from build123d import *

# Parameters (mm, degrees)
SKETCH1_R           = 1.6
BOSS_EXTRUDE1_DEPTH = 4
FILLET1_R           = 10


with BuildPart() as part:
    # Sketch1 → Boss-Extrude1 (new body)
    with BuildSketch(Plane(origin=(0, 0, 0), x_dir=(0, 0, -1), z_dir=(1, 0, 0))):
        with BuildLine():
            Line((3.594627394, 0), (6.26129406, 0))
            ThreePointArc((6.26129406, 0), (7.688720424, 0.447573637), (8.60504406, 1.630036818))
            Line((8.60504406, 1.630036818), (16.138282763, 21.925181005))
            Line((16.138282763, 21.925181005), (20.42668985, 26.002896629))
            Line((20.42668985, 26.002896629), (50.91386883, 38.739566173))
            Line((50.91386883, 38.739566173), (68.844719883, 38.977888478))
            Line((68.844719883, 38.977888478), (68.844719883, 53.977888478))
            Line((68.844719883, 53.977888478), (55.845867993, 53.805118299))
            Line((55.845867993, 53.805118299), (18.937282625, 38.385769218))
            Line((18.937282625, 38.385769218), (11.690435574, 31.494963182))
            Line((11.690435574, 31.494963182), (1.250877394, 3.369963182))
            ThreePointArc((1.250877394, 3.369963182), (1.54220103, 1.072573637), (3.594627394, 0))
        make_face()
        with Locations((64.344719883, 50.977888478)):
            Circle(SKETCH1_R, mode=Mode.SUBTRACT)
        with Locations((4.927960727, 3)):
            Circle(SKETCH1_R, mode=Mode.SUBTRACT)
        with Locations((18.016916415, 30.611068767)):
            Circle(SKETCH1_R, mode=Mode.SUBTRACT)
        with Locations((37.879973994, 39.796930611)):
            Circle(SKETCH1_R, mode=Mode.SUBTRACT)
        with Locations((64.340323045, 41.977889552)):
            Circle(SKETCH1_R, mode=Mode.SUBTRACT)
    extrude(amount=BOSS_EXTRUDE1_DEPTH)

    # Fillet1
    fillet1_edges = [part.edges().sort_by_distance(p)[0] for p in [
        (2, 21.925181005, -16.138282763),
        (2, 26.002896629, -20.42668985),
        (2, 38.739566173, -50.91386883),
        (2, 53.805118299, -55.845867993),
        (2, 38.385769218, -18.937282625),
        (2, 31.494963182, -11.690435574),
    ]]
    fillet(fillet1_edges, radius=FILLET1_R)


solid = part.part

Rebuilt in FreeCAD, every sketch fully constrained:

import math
import FreeCAD as App
import Part
import Sketcher


def edges_at(feature, points):
    """Names of the edges that pass closest to the given points."""
    edges = feature.Shape.Edges
    near = lambda p: min(range(len(edges)), key=lambda i: edges[i].distToShape(Part.Vertex(*p))[0])
    return sorted({f"Edge{near(p) + 1}" for p in points})

doc = App.newDocument("Part")
body = doc.addObject("PartDesign::Body", "Body")

sketch1 = body.newObject("Sketcher::SketchObject", "Sketch")
sketch1.AttachmentSupport = (doc.getObject("YZ_Plane"), [""])
sketch1.MapMode = "FlatFace"
sketch1.addGeometry([
    Part.LineSegment(App.Vector(0, -3.6, 0), App.Vector(0, -6.3, 0)),
    Part.ArcOfCircle(Part.Circle(App.Vector(2.5, -6.3, 0), App.Vector(0, 0, 1), 2.5), math.radians(180), math.radians(250)),
    Part.LineSegment(App.Vector(1.6, -8.6, 0), App.Vector(21.9, -16.1, 0)),
    Part.LineSegment(App.Vector(21.9, -16.1, 0), App.Vector(26, -20.4, 0)),
    Part.LineSegment(App.Vector(26, -20.4, 0), App.Vector(38.7, -50.9, 0)),
    Part.LineSegment(App.Vector(38.7, -50.9, 0), App.Vector(39, -68.8, 0)),
    Part.LineSegment(App.Vector(39, -68.8, 0), App.Vector(54, -68.8, 0)),
    Part.LineSegment(App.Vector(54, -68.8, 0), App.Vector(53.8, -55.8, 0)),
    Part.LineSegment(App.Vector(53.8, -55.8, 0), App.Vector(38.4, -18.9, 0)),
    Part.LineSegment(App.Vector(38.4, -18.9, 0), App.Vector(31.5, -11.7, 0)),
    Part.LineSegment(App.Vector(31.5, -11.7, 0), App.Vector(3.4, -1.3, 0)),
    Part.ArcOfCircle(Part.Circle(App.Vector(2.5, -3.6, 0), App.Vector(0, 0, 1), 2.5), math.radians(70), math.radians(180)),
    Part.Circle(App.Vector(3, -4.9, 0), App.Vector(0, 0, 1), 1.6),
    Part.Circle(App.Vector(30.6, -18, 0), App.Vector(0, 0, 1), 1.6),
    Part.Circle(App.Vector(39.8, -37.9, 0), App.Vector(0, 0, 1), 1.6),
    Part.Circle(App.Vector(42, -64.3, 0), App.Vector(0, 0, 1), 1.6),
    Part.Circle(App.Vector(51, -64.3, 0), App.Vector(0, 0, 1), 1.6),
], False)
sketch1.addConstraint([
    Sketcher.Constraint("Tangent", 0, 2, 1, 1),
    Sketcher.Constraint("Tangent", 1, 2, 2, 1),
    Sketcher.Constraint("Coincident", 2, 2, 3, 1),
    Sketcher.Constraint("Coincident", 3, 2, 4, 1),
    Sketcher.Constraint("Coincident", 4, 2, 5, 1),
    Sketcher.Constraint("Coincident", 5, 2, 6, 1),
    Sketcher.Constraint("Coincident", 6, 2, 7, 1),
    Sketcher.Constraint("Coincident", 7, 2, 8, 1),
    Sketcher.Constraint("Coincident", 8, 2, 9, 1),
    Sketcher.Constraint("Coincident", 9, 2, 10, 1),
    Sketcher.Constraint("Tangent", 10, 2, 11, 1),
    Sketcher.Constraint("Tangent", 11, 2, 0, 1),
    Sketcher.Constraint("Vertical", 0),
    Sketcher.Constraint("Horizontal", 6),
    Sketcher.Constraint("Equal", 1, 11),
    Sketcher.Constraint("Equal", 12, 13),
    Sketcher.Constraint("Equal", 13, 14),
    Sketcher.Constraint("Equal", 14, 15),
    Sketcher.Constraint("Equal", 15, 16),
    Sketcher.Constraint("PointOnObject", 0, 2, -2),
    Sketcher.Constraint("Parallel", 5, 7),
    Sketcher.Constraint("Parallel", 4, 8),
    Sketcher.Constraint("Parallel", 3, 9),
    Sketcher.Constraint("Parallel", 2, 10),
    Sketcher.Constraint("Diameter", 12, 3.2),
    Sketcher.Constraint("Radius", 1, 2.5),
    Sketcher.Constraint("DistanceX", 6, 1, 6, 2, 15.0),
    Sketcher.Constraint("Distance", 7, 13.0),
    Sketcher.Constraint("Distance", 8, 40.0),
    Sketcher.Constraint("Distance", 9, 10.0),
    Sketcher.Constraint("Distance", 10, 30.0),
    Sketcher.Constraint("DistanceX", -1, 1, 12, 3, 3.0),
    Sketcher.Constraint("DistanceX", 15, 3, 16, 3, 8.999999),
    Sketcher.Constraint("DistanceX", 5, 2, 15, 3, 3.000001),
    Sketcher.Constraint("DistanceY", 5, 2, 16, 3, 4.5),
    Sketcher.Constraint("DistanceY", 7, 2, 4, 2, 4.931999),
    Sketcher.Constraint("DistanceY", 8, 2, 2, 2, 2.799),
    Sketcher.Constraint("DistanceX", 13, 3, 8, 2, 7.7747),
    Sketcher.Constraint("DistanceY", 0, 2, 0, 1, 2.666667),
    Sketcher.Constraint("DistanceY", 12, 3, -1, 1, 4.927961),
    Sketcher.Constraint("DistanceX", -1, 1, 13, 3, 30.611069),
    Sketcher.Constraint("DistanceX", -1, 1, 14, 3, 39.796931),
    Sketcher.Constraint("DistanceX", -1, 1, 15, 3, 41.97789),
    Sketcher.Constraint("DistanceY", 16, 3, -1, 1, 64.34472),
    Sketcher.Constraint("DistanceX", -1, 1, 2, 2, 21.925181),
    Sketcher.Constraint("DistanceY", 3, 2, -1, 1, 20.42669),
    Sketcher.Constraint("DistanceY", 13, 3, 11, 3, 14.422289),
    Sketcher.Constraint("DistanceY", 14, 3, 1, 3, 31.61868),
    Sketcher.Constraint("DistanceY", 15, 3, 14, 3, 26.460349),
])
pad1 = body.newObject("PartDesign::Pad", "Pad")
pad1.Profile = sketch1
pad1.Length = 4
doc.recompute()

fillet = body.newObject("PartDesign::Fillet", "Fillet")
fillet.Base = (pad1, edges_at(pad1, [
    (2, 21.925, -16.138),
    (2, 26.003, -20.427),
    (2, 38.74, -50.914),
    (2, 53.805, -55.846),
    (2, 38.386, -18.937),
    (2, 31.495, -11.69),
]))
fillet.Radius = 10

doc.recompute()
